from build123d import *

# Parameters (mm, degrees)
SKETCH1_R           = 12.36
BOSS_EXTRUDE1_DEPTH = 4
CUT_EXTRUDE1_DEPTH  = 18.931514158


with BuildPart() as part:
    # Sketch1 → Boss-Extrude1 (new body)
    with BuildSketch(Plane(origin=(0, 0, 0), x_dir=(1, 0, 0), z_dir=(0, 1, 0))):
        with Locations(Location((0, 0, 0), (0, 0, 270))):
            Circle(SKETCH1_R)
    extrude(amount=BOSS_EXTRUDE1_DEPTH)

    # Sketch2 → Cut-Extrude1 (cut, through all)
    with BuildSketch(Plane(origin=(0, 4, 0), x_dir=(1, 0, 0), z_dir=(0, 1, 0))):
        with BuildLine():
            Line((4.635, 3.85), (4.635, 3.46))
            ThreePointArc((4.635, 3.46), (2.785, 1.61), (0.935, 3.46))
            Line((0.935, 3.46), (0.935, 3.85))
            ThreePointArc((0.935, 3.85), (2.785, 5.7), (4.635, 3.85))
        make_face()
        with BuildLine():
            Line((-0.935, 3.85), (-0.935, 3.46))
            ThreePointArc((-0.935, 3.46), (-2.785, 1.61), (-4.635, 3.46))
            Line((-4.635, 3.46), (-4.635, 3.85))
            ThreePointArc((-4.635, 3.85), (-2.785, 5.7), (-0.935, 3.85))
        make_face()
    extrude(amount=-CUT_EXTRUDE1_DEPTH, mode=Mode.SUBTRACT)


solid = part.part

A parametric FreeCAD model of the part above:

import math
import FreeCAD as App
import Part
import Sketcher
Q = App.Units.Quantity

doc = App.newDocument("Part")
body = doc.addObject("PartDesign::Body", "Body")

sketch1 = body.newObject("Sketcher::SketchObject", "Sketch")
sketch1.AttachmentSupport = (doc.getObject("XZ_Plane"), [""])
sketch1.MapMode = "FlatFace"
sketch1.addGeometry(Part.Circle(App.Vector(0, 0, 0), App.Vector(0, 0, 1), 12.36), False)
sketch1.addConstraint([
    Sketcher.Constraint("Coincident", 0, 3, -1, 1),
    Sketcher.Constraint("Diameter", 0, Q("24.72 mm")),
])
pad1 = body.newObject("PartDesign::Pad", "Pad")
pad1.Profile = sketch1
pad1.Length = 4
pad1.Reversed = True

sketch2 = body.newObject("Sketcher::SketchObject", "Sketch001")
sketch2.AttachmentSupport = (doc.getObject("XZ_Plane"), [""])
sketch2.MapMode = "FlatFace"
sketch2.AttachmentOffset = App.Placement(App.Vector(0, 0, -4), App.Rotation())
sketch2.addGeometry([
    Part.LineSegment(App.Vector(4.635, -3.46, 0), App.Vector(4.635, -3.85, 0)),
    Part.ArcOfCircle(Part.Circle(App.Vector(2.785, -3.85, 0), App.Vector(0, 0, 1), 1.85), math.radians(180), math.radians(360)),
    Part.LineSegment(App.Vector(0.935, -3.85, 0), App.Vector(0.935, -3.46, 0)),
    Part.ArcOfCircle(Part.Circle(App.Vector(2.785, -3.46, 0), App.Vector(0, 0, 1), 1.85), math.radians(0), math.radians(180)),
    Part.LineSegment(App.Vector(-0.935, -3.46, 0), App.Vector(-0.935, -3.85, 0)),
    Part.ArcOfCircle(Part.Circle(App.Vector(-2.785, -3.85, 0), App.Vector(0, 0, 1), 1.85), math.radians(180), math.radians(360)),
    Part.LineSegment(App.Vector(-4.635, -3.85, 0), App.Vector(-4.635, -3.46, 0)),
    Part.ArcOfCircle(Part.Circle(App.Vector(-2.785, -3.46, 0), App.Vector(0, 0, 1), 1.85), math.radians(0), math.radians(180)),
], False)
sketch2.addConstraint([
    Sketcher.Constraint("Tangent", 0, 2, 1, 2),
    Sketcher.Constraint("Tangent", 1, 1, 2, 1),
    Sketcher.Constraint("Tangent", 2, 2, 3, 2),
    Sketcher.Constraint("Tangent", 3, 1, 0, 1),
    Sketcher.Constraint("Tangent", 4, 2, 5, 2),
    Sketcher.Constraint("Tangent", 5, 1, 6, 1),
    Sketcher.Constraint("Tangent", 6, 2, 7, 2),
    Sketcher.Constraint("Tangent", 7, 1, 4, 1),
    Sketcher.Constraint("Vertical", 0),
    Sketcher.Constraint("Vertical", 2),
    Sketcher.Constraint("Vertical", 4),
    Sketcher.Constraint("Vertical", 6),
    Sketcher.Constraint("Equal", 3, 5),
    Sketcher.Constraint("Symmetric", 1, 3, 5, 3, -2),
    Sketcher.Constraint("Horizontal", 3, 3, 7, 3),
    Sketcher.Constraint("Radius", 1, Q("1.85 mm")),
    Sketcher.Constraint("DistanceY", 0, 2, 0, 1, Q("0.39 mm")),
    Sketcher.Constraint("DistanceY", 1, 3, -1, 1, Q("3.85 mm")),
    Sketcher.Constraint("DistanceX", 5, 3, 1, 3, Q("5.57 mm")),
])
pocket1 = body.newObject("PartDesign::Pocket", "Pocket")
pocket1.Profile = sketch2
pocket1.Type = "ThroughAll"
pocket1.Reversed = True

doc.recompute()
